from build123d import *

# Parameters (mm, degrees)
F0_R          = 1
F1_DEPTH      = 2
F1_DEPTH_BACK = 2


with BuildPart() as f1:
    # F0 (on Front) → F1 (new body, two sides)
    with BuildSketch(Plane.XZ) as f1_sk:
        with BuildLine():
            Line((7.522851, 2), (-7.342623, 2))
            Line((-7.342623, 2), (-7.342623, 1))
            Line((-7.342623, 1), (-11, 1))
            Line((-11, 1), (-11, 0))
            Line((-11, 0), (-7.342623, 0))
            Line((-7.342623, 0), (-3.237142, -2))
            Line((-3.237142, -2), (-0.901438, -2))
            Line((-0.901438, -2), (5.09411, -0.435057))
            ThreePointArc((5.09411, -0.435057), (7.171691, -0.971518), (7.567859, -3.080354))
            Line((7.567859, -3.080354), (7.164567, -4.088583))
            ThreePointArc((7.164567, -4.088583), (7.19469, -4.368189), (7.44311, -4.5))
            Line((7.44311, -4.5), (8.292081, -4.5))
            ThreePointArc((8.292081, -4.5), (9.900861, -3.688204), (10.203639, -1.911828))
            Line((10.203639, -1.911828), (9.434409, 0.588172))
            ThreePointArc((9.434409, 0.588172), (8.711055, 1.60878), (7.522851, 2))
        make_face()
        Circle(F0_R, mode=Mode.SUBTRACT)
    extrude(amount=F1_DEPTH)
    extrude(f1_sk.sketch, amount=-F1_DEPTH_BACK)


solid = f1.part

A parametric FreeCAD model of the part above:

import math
import FreeCAD as App
import Part
import Sketcher

doc = App.newDocument("Part")
body = doc.addObject("PartDesign::Body", "Body")

# Sketch on XZ plane
sketch1 = body.newObject("Sketcher::SketchObject", "Sketch")
sketch1.AttachmentSupport = (doc.getObject("XZ_Plane"), [""])
sketch1.MapMode = "FlatFace"
sketch1.addGeometry(Part.LineSegment(App.Vector(7.522851, 2, 0), App.Vector(-7.342623, 2, 0)), False)
sketch1.addGeometry(Part.LineSegment(App.Vector(-7.342623, 2, 0), App.Vector(-7.342623, 1, 0)), False)
sketch1.addGeometry(Part.LineSegment(App.Vector(-7.342623, 1, 0), App.Vector(-11, 1, 0)), False)
sketch1.addGeometry(Part.LineSegment(App.Vector(-11, 1, 0), App.Vector(-11, 0, 0)), False)
sketch1.addGeometry(Part.LineSegment(App.Vector(-11, 0, 0), App.Vector(-7.342623, 0, 0)), False)
sketch1.addGeometry(Part.LineSegment(App.Vector(-7.342623, 0, 0), App.Vector(-3.237142, -2, 0)), False)
sketch1.addGeometry(Part.LineSegment(App.Vector(-3.237142, -2, 0), App.Vector(-0.901438, -2, 0)), False)
sketch1.addGeometry(Part.LineSegment(App.Vector(-0.901438, -2, 0), App.Vector(5.09411, -0.435057, 0)), False)
sketch1.addGeometry(Part.ArcOfCircle(Part.Circle(App.Vector(5.710905, -2.337573, 0), App.Vector(0, 0, 1), 2.000001), math.radians(-21.80139), math.radians(107.962668)), False)
sketch1.addGeometry(Part.LineSegment(App.Vector(7.567859, -3.080354, 0), App.Vector(7.164567, -4.088583, 0)), False)
sketch1.addGeometry(Part.ArcOfCircle(Part.Circle(App.Vector(7.44311, -4.2, 0), App.Vector(0, 0, 1), 0.3), math.radians(158.198584), math.radians(270.000031)), False)
sketch1.addGeometry(Part.LineSegment(App.Vector(7.44311, -4.5, 0), App.Vector(8.292081, -4.5, 0)), False)
sketch1.addGeometry(Part.ArcOfCircle(Part.Circle(App.Vector(8.292082, -2.500001, 0), App.Vector(0, 0, 1), 1.999999), math.radians(-90.000025), math.radians(17.102761)), False)
sketch1.addGeometry(Part.LineSegment(App.Vector(10.203639, -1.911828, 0), App.Vector(9.434409, 0.588172, 0)), False)
sketch1.addGeometry(Part.ArcOfCircle(Part.Circle(App.Vector(7.522852, 0.000002, 0), App.Vector(0, 0, 1), 1.999998), math.radians(17.102702), math.radians(90.000038)), False)
sketch1.addGeometry(Part.Circle(App.Vector(0, 0, 0), App.Vector(0, 0, 1), 1), False)
sketch1.addConstraint(Sketcher.Constraint("Coincident", 0, 2, 1, 1))
sketch1.addConstraint(Sketcher.Constraint("Coincident", 1, 2, 2, 1))
sketch1.addConstraint(Sketcher.Constraint("Coincident", 2, 2, 3, 1))
sketch1.addConstraint(Sketcher.Constraint("Coincident", 3, 2, 4, 1))
sketch1.addConstraint(Sketcher.Constraint("Coincident", 4, 2, 5, 1))
sketch1.addConstraint(Sketcher.Constraint("Coincident", 5, 2, 6, 1))
sketch1.addConstraint(Sketcher.Constraint("Coincident", 6, 2, 7, 1))
sketch1.addConstraint(Sketcher.Constraint("Coincident", 7, 2, 8, 2))
sketch1.addConstraint(Sketcher.Constraint("Tangent", 8, 1, 9, 1))
sketch1.addConstraint(Sketcher.Constraint("Tangent", 9, 2, 10, 1))
sketch1.addConstraint(Sketcher.Constraint("Tangent", 10, 2, 11, 1))
sketch1.addConstraint(Sketcher.Constraint("Tangent", 11, 2, 12, 1))
sketch1.addConstraint(Sketcher.Constraint("Tangent", 12, 2, 13, 1))
sketch1.addConstraint(Sketcher.Constraint("Tangent", 13, 2, 14, 1))
sketch1.addConstraint(Sketcher.Constraint("Tangent", 14, 2, 0, 1))
sketch1.addConstraint(Sketcher.Constraint("Horizontal", 0))
sketch1.addConstraint(Sketcher.Constraint("Vertical", 1))
sketch1.addConstraint(Sketcher.Constraint("Horizontal", 2))
sketch1.addConstraint(Sketcher.Constraint("Vertical", 3))
sketch1.addConstraint(Sketcher.Constraint("Horizontal", 4))
sketch1.addConstraint(Sketcher.Constraint("Horizontal", 6))
sketch1.addConstraint(Sketcher.Constraint("Horizontal", 11))
sketch1.addConstraint(Sketcher.Constraint("Coincident", 15, 3, -1, 1))
sketch1.addConstraint(Sketcher.Constraint("Equal", 8, 12))
sketch1.addConstraint(Sketcher.Constraint("Equal", 12, 14))
sketch1.addConstraint(Sketcher.Constraint("PointOnObject", 14, 3, -1))
sketch1.addConstraint(Sketcher.Constraint("PointOnObject", 3, 2, -1))
sketch1.addConstraint(Sketcher.Constraint("Vertical", 1, 2, 4, 2))
sketch1.addConstraint(Sketcher.Constraint("Equal", 1, 3))
sketch1.addConstraint(Sketcher.Constraint("Diameter", 15, 2.0))
sketch1.addConstraint(Sketcher.Constraint("Radius", 8, 2.000001))
sketch1.addConstraint(Sketcher.Constraint("Radius", 10, 0.3))
sketch1.addConstraint(Sketcher.Constraint("DistanceX", 2, 2, -1, 1, 11.0))
sketch1.addConstraint(Sketcher.Constraint("DistanceY", 5, 2, -1, 1, 2.0))
sketch1.addConstraint(Sketcher.Constraint("DistanceY", 10, 3, -1, 1, 4.2))
sketch1.addConstraint(Sketcher.Constraint("DistanceX", 7, 2, 10, 3, 2.349))
sketch1.addConstraint(Sketcher.Constraint("DistanceX", 11, 1, 11, 2, 0.848971))
sketch1.addConstraint(Sketcher.Constraint("DistanceX", 7, 2, 13, 2, 4.340299))
sketch1.addConstraint(Sketcher.Constraint("Distance", 7, 6.196422))
sketch1.addConstraint(Sketcher.Constraint("DistanceX", 0, 2, 0, 1, 14.865474))
sketch1.addConstraint(Sketcher.Constraint("DistanceX", 2, 2, 2, 1, 3.657377))
sketch1.addConstraint(Sketcher.Constraint("DistanceX", 6, 1, 6, 2, 2.335704))
sketch1.addConstraint(Sketcher.Constraint("DistanceX", 5, 2, -1, 1, 3.237142))
sketch1.addConstraint(Sketcher.Constraint("DistanceX", -1, 1, 8, 1, 7.567859))
pad1 = body.newObject("PartDesign::Pad", "Pad")
pad1.Profile = sketch1
pad1.Type = "TwoLengths"
pad1.Length = 2
pad1.Length2 = 2

doc.recompute()
